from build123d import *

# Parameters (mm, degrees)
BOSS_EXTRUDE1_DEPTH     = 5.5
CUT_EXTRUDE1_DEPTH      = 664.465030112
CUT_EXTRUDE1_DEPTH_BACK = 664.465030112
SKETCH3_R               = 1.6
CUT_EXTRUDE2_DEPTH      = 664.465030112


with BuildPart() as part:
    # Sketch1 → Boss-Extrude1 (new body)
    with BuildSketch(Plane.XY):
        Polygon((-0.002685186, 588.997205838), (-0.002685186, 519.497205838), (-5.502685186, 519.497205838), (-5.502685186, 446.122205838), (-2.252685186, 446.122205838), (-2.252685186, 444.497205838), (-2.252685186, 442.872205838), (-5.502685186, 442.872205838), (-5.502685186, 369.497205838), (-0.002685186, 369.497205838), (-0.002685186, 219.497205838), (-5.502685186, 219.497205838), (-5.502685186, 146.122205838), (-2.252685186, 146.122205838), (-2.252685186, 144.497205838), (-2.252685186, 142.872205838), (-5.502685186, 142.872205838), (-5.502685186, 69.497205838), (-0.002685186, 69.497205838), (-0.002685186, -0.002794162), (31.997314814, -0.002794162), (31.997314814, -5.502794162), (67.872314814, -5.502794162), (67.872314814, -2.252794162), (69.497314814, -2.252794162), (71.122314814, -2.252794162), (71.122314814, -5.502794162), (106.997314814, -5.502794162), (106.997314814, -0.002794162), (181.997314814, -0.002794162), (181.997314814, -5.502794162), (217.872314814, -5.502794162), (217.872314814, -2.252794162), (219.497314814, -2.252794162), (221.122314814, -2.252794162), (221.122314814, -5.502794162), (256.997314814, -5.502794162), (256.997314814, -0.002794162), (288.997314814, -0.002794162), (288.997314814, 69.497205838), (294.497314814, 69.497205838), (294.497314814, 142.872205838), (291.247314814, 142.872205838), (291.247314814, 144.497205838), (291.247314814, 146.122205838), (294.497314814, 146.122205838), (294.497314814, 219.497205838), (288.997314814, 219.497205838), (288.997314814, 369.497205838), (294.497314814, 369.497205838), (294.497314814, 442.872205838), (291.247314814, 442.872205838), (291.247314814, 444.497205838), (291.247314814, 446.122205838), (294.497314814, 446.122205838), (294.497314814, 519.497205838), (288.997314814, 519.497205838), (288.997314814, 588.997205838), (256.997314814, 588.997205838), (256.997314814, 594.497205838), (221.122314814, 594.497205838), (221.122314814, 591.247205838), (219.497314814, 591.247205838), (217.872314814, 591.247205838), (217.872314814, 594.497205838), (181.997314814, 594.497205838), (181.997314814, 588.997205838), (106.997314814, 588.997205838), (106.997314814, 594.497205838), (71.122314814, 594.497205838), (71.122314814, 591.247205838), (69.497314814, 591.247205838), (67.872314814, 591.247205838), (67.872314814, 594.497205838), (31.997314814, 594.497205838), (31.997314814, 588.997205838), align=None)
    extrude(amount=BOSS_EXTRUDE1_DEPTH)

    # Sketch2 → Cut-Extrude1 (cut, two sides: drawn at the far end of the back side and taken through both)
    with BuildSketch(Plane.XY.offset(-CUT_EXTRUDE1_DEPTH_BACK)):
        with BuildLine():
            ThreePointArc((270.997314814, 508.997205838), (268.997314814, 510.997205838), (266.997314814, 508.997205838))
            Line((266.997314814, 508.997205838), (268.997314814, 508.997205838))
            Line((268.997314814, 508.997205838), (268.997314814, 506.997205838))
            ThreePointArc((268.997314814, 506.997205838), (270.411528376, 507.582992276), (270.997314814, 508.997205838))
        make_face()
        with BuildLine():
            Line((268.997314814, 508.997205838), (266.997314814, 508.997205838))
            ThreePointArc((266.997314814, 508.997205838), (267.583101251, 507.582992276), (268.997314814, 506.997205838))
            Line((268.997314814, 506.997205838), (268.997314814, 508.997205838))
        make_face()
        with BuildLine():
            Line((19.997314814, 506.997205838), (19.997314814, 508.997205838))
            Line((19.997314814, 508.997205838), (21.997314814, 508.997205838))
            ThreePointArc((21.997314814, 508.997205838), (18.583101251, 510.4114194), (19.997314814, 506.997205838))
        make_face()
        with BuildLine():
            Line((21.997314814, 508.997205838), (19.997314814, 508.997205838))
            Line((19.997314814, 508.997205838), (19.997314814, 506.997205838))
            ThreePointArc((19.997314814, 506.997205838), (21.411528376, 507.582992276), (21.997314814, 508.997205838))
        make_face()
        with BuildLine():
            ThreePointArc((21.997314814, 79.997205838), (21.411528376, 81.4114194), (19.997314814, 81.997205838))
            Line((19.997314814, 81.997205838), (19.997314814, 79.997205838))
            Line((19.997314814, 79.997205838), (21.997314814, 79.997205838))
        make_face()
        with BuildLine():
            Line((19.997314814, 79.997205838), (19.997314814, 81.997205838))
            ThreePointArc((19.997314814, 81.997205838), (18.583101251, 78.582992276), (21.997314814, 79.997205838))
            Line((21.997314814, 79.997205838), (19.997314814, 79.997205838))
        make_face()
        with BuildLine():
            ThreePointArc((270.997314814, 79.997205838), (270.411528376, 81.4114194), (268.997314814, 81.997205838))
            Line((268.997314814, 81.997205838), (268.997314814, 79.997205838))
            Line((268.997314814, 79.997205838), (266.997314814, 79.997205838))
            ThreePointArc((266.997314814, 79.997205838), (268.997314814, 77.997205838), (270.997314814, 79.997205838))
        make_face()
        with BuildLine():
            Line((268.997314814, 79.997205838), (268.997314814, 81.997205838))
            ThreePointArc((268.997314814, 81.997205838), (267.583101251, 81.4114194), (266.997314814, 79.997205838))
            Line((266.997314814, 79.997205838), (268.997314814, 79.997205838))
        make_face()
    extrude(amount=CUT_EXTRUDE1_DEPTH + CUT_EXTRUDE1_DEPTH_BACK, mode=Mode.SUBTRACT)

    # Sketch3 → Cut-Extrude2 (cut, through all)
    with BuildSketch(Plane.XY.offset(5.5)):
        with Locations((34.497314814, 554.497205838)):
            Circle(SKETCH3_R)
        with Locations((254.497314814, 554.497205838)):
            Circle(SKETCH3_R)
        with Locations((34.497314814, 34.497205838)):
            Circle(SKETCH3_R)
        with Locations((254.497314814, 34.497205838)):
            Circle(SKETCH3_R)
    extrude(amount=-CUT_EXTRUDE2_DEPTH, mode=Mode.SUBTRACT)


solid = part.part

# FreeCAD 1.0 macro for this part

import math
import FreeCAD as App
import Part
import Sketcher

doc = App.newDocument("Part")
body = doc.addObject("PartDesign::Body", "Body")

sketch1 = body.newObject("Sketcher::SketchObject", "Sketch")
sketch1.AttachmentSupport = (doc.getObject("XY_Plane"), [""])
sketch1.MapMode = "FlatFace"
sketch1.addGeometry(Part.LineSegment(App.Vector(0, 589, 0), App.Vector(0, 519.5, 0)), False)
sketch1.addGeometry(Part.LineSegment(App.Vector(0, 519.5, 0), App.Vector(-5.5, 519.5, 0)), False)
sketch1.addGeometry(Part.LineSegment(App.Vector(-5.5, 519.5, 0), App.Vector(-5.5, 446.1, 0)), False)
sketch1.addGeometry(Part.LineSegment(App.Vector(-5.5, 446.1, 0), App.Vector(-2.3, 446.1, 0)), False)
sketch1.addGeometry(Part.LineSegment(App.Vector(-2.3, 446.1, 0), App.Vector(-2.3, 442.9, 0)), False)
sketch1.addGeometry(Part.LineSegment(App.Vector(-2.3, 442.9, 0), App.Vector(-5.5, 442.9, 0)), False)
sketch1.addGeometry(Part.LineSegment(App.Vector(-5.5, 442.9, 0), App.Vector(-5.5, 369.5, 0)), False)
sketch1.addGeometry(Part.LineSegment(App.Vector(-5.5, 369.5, 0), App.Vector(0, 369.5, 0)), False)
sketch1.addGeometry(Part.LineSegment(App.Vector(0, 369.5, 0), App.Vector(0, 219.5, 0)), False)
sketch1.addGeometry(Part.LineSegment(App.Vector(0, 219.5, 0), App.Vector(-5.5, 219.5, 0)), False)
sketch1.addGeometry(Part.LineSegment(App.Vector(-5.5, 219.5, 0), App.Vector(-5.5, 146.1, 0)), False)
sketch1.addGeometry(Part.LineSegment(App.Vector(-5.5, 146.1, 0), App.Vector(-2.3, 146.1, 0)), False)
sketch1.addGeometry(Part.LineSegment(App.Vector(-2.3, 146.1, 0), App.Vector(-2.3, 142.9, 0)), False)
sketch1.addGeometry(Part.LineSegment(App.Vector(-2.3, 142.9, 0), App.Vector(-5.5, 142.9, 0)), False)
sketch1.addGeometry(Part.LineSegment(App.Vector(-5.5, 142.9, 0), App.Vector(-5.5, 69.5, 0)), False)
sketch1.addGeometry(Part.LineSegment(App.Vector(-5.5, 69.5, 0), App.Vector(0, 69.5, 0)), False)
sketch1.addGeometry(Part.LineSegment(App.Vector(0, 69.5, 0), App.Vector(0, 0, 0)), False)
sketch1.addGeometry(Part.LineSegment(App.Vector(0, 0, 0), App.Vector(32, 0, 0)), False)
sketch1.addGeometry(Part.LineSegment(App.Vector(32, 0, 0), App.Vector(32, -5.5, 0)), False)
sketch1.addGeometry(Part.LineSegment(App.Vector(32, -5.5, 0), App.Vector(67.9, -5.5, 0)), False)
sketch1.addGeometry(Part.LineSegment(App.Vector(67.9, -5.5, 0), App.Vector(67.9, -2.3, 0)), False)
sketch1.addGeometry(Part.LineSegment(App.Vector(67.9, -2.3, 0), App.Vector(71.1, -2.3, 0)), False)
sketch1.addGeometry(Part.LineSegment(App.Vector(71.1, -2.3, 0), App.Vector(71.1, -5.5, 0)), False)
sketch1.addGeometry(Part.LineSegment(App.Vector(71.1, -5.5, 0), App.Vector(107, -5.5, 0)), False)
sketch1.addGeometry(Part.LineSegment(App.Vector(107, -5.5, 0), App.Vector(107, 0, 0)), False)
sketch1.addGeometry(Part.LineSegment(App.Vector(107, 0, 0), App.Vector(182, 0, 0)), False)
sketch1.addGeometry(Part.LineSegment(App.Vector(182, 0, 0), App.Vector(182, -5.5, 0)), False)
sketch1.addGeometry(Part.LineSegment(App.Vector(182, -5.5, 0), App.Vector(217.9, -5.5, 0)), False)
sketch1.addGeometry(Part.LineSegment(App.Vector(217.9, -5.5, 0), App.Vector(217.9, -2.3, 0)), False)
sketch1.addGeometry(Part.LineSegment(App.Vector(217.9, -2.3, 0), App.Vector(221.1, -2.3, 0)), False)
sketch1.addGeometry(Part.LineSegment(App.Vector(221.1, -2.3, 0), App.Vector(221.1, -5.5, 0)), False)
sketch1.addGeometry(Part.LineSegment(App.Vector(221.1, -5.5, 0), App.Vector(257, -5.5, 0)), False)
sketch1.addGeometry(Part.LineSegment(App.Vector(257, -5.5, 0), App.Vector(257, 0, 0)), False)
sketch1.addGeometry(Part.LineSegment(App.Vector(257, 0, 0), App.Vector(289, 0, 0)), False)
sketch1.addGeometry(Part.LineSegment(App.Vector(289, 0, 0), App.Vector(289, 69.5, 0)), False)
sketch1.addGeometry(Part.LineSegment(App.Vector(289, 69.5, 0), App.Vector(294.5, 69.5, 0)), False)
sketch1.addGeometry(Part.LineSegment(App.Vector(294.5, 69.5, 0), App.Vector(294.5, 142.9, 0)), False)
sketch1.addGeometry(Part.LineSegment(App.Vector(294.5, 142.9, 0), App.Vector(291.2, 142.9, 0)), False)
sketch1.addGeometry(Part.LineSegment(App.Vector(291.2, 142.9, 0), App.Vector(291.2, 146.1, 0)), False)
sketch1.addGeometry(Part.LineSegment(App.Vector(291.2, 146.1, 0), App.Vector(294.5, 146.1, 0)), False)
sketch1.addGeometry(Part.LineSegment(App.Vector(294.5, 146.1, 0), App.Vector(294.5, 219.5, 0)), False)
sketch1.addGeometry(Part.LineSegment(App.Vector(294.5, 219.5, 0), App.Vector(289, 219.5, 0)), False)
sketch1.addGeometry(Part.LineSegment(App.Vector(289, 219.5, 0), App.Vector(289, 369.5, 0)), False)
sketch1.addGeometry(Part.LineSegment(App.Vector(289, 369.5, 0), App.Vector(294.5, 369.5, 0)), False)
sketch1.addGeometry(Part.LineSegment(App.Vector(294.5, 369.5, 0), App.Vector(294.5, 442.9, 0)), False)
sketch1.addGeometry(Part.LineSegment(App.Vector(294.5, 442.9, 0), App.Vector(291.2, 442.9, 0)), False)
sketch1.addGeometry(Part.LineSegment(App.Vector(291.2, 442.9, 0), App.Vector(291.2, 446.1, 0)), False)
sketch1.addGeometry(Part.LineSegment(App.Vector(291.2, 446.1, 0), App.Vector(294.5, 446.1, 0)), False)
sketch1.addGeometry(Part.LineSegment(App.Vector(294.5, 446.1, 0), App.Vector(294.5, 519.5, 0)), False)
sketch1.addGeometry(Part.LineSegment(App.Vector(294.5, 519.5, 0), App.Vector(289, 519.5, 0)), False)
sketch1.addGeometry(Part.LineSegment(App.Vector(289, 519.5, 0), App.Vector(289, 589, 0)), False)
sketch1.addGeometry(Part.LineSegment(App.Vector(289, 589, 0), App.Vector(257, 589, 0)), False)
sketch1.addGeometry(Part.LineSegment(App.Vector(257, 589, 0), App.Vector(257, 594.5, 0)), False)
sketch1.addGeometry(Part.LineSegment(App.Vector(257, 594.5, 0), App.Vector(221.1, 594.5, 0)), False)
sketch1.addGeometry(Part.LineSegment(App.Vector(221.1, 594.5, 0), App.Vector(221.1, 591.2, 0)), False)
sketch1.addGeometry(Part.LineSegment(App.Vector(221.1, 591.2, 0), App.Vector(217.9, 591.2, 0)), False)
sketch1.addGeometry(Part.LineSegment(App.Vector(217.9, 591.2, 0), App.Vector(217.9, 594.5, 0)), False)
sketch1.addGeometry(Part.LineSegment(App.Vector(217.9, 594.5, 0), App.Vector(182, 594.5, 0)), False)
sketch1.addGeometry(Part.LineSegment(App.Vector(182, 594.5, 0), App.Vector(182, 589, 0)), False)
sketch1.addGeometry(Part.LineSegment(App.Vector(182, 589, 0), App.Vector(107, 589, 0)), False)
sketch1.addGeometry(Part.LineSegment(App.Vector(107, 589, 0), App.Vector(107, 594.5, 0)), False)
sketch1.addGeometry(Part.LineSegment(App.Vector(107, 594.5, 0), App.Vector(71.1, 594.5, 0)), False)
sketch1.addGeometry(Part.LineSegment(App.Vector(71.1, 594.5, 0), App.Vector(71.1, 591.2, 0)), False)
sketch1.addGeometry(Part.LineSegment(App.Vector(71.1, 591.2, 0), App.Vector(67.9, 591.2, 0)), False)
sketch1.addGeometry(Part.LineSegment(App.Vector(67.9, 591.2, 0), App.Vector(67.9, 594.5, 0)), False)
sketch1.addGeometry(Part.LineSegment(App.Vector(67.9, 594.5, 0), App.Vector(32, 594.5, 0)), False)
sketch1.addGeometry(Part.LineSegment(App.Vector(32, 594.5, 0), App.Vector(32, 589, 0)), False)
sketch1.addGeometry(Part.LineSegment(App.Vector(32, 589, 0), App.Vector(0, 589, 0)), False)
sketch1.addConstraint(Sketcher.Constraint("Coincident", 0, 2, 1, 1))
sketch1.addConstraint(Sketcher.Constraint("Coincident", 1, 2, 2, 1))
sketch1.addConstraint(Sketcher.Constraint("Coincident", 2, 2, 3, 1))
sketch1.addConstraint(Sketcher.Constraint("Coincident", 3, 2, 4, 1))
sketch1.addConstraint(Sketcher.Constraint("Coincident", 4, 2, 5, 1))
sketch1.addConstraint(Sketcher.Constraint("Coincident", 5, 2, 6, 1))
sketch1.addConstraint(Sketcher.Constraint("Coincident", 6, 2, 7, 1))
sketch1.addConstraint(Sketcher.Constraint("Coincident", 7, 2, 8, 1))
sketch1.addConstraint(Sketcher.Constraint("Coincident", 8, 2, 9, 1))
sketch1.addConstraint(Sketcher.Constraint("Coincident", 9, 2, 10, 1))
sketch1.addConstraint(Sketcher.Constraint("Coincident", 10, 2, 11, 1))
sketch1.addConstraint(Sketcher.Constraint("Coincident", 11, 2, 12, 1))
sketch1.addConstraint(Sketcher.Constraint("Coincident", 12, 2, 13, 1))
sketch1.addConstraint(Sketcher.Constraint("Coincident", 13, 2, 14, 1))
sketch1.addConstraint(Sketcher.Constraint("Coincident", 14, 2, 15, 1))
sketch1.addConstraint(Sketcher.Constraint("Coincident", 15, 2, 16, 1))
sketch1.addConstraint(Sketcher.Constraint("Coincident", 16, 2, 17, 1))
sketch1.addConstraint(Sketcher.Constraint("Coincident", 17, 2, 18, 1))
sketch1.addConstraint(Sketcher.Constraint("Coincident", 18, 2, 19, 1))
sketch1.addConstraint(Sketcher.Constraint("Coincident", 19, 2, 20, 1))
sketch1.addConstraint(Sketcher.Constraint("Coincident", 20, 2, 21, 1))
sketch1.addConstraint(Sketcher.Constraint("Coincident", 21, 2, 22, 1))
sketch1.addConstraint(Sketcher.Constraint("Coincident", 22, 2, 23, 1))
sketch1.addConstraint(Sketcher.Constraint("Coincident", 23, 2, 24, 1))
sketch1.addConstraint(Sketcher.Constraint("Coincident", 24, 2, 25, 1))
sketch1.addConstraint(Sketcher.Constraint("Coincident", 25, 2, 26, 1))
sketch1.addConstraint(Sketcher.Constraint("Coincident", 26, 2, 27, 1))
sketch1.addConstraint(Sketcher.Constraint("Coincident", 27, 2, 28, 1))
sketch1.addConstraint(Sketcher.Constraint("Coincident", 28, 2, 29, 1))
sketch1.addConstraint(Sketcher.Constraint("Coincident", 29, 2, 30, 1))
sketch1.addConstraint(Sketcher.Constraint("Coincident", 30, 2, 31, 1))
sketch1.addConstraint(Sketcher.Constraint("Coincident", 31, 2, 32, 1))
sketch1.addConstraint(Sketcher.Constraint("Coincident", 32, 2, 33, 1))
sketch1.addConstraint(Sketcher.Constraint("Coincident", 33, 2, 34, 1))
sketch1.addConstraint(Sketcher.Constraint("Coincident", 34, 2, 35, 1))
sketch1.addConstraint(Sketcher.Constraint("Coincident", 35, 2, 36, 1))
sketch1.addConstraint(Sketcher.Constraint("Coincident", 36, 2, 37, 1))
sketch1.addConstraint(Sketcher.Constraint("Coincident", 37, 2, 38, 1))
sketch1.addConstraint(Sketcher.Constraint("Coincident", 38, 2, 39, 1))
sketch1.addConstraint(Sketcher.Constraint("Coincident", 39, 2, 40, 1))
sketch1.addConstraint(Sketcher.Constraint("Coincident", 40, 2, 41, 1))
sketch1.addConstraint(Sketcher.Constraint("Coincident", 41, 2, 42, 1))
sketch1.addConstraint(Sketcher.Constraint("Coincident", 42, 2, 43, 1))
sketch1.addConstraint(Sketcher.Constraint("Coincident", 43, 2, 44, 1))
sketch1.addConstraint(Sketcher.Constraint("Coincident", 44, 2, 45, 1))
sketch1.addConstraint(Sketcher.Constraint("Coincident", 45, 2, 46, 1))
sketch1.addConstraint(Sketcher.Constraint("Coincident", 46, 2, 47, 1))
sketch1.addConstraint(Sketcher.Constraint("Coincident", 47, 2, 48, 1))
sketch1.addConstraint(Sketcher.Constraint("Coincident", 48, 2, 49, 1))
sketch1.addConstraint(Sketcher.Constraint("Coincident", 49, 2, 50, 1))
sketch1.addConstraint(Sketcher.Constraint("Coincident", 50, 2, 51, 1))
sketch1.addConstraint(Sketcher.Constraint("Coincident", 51, 2, 52, 1))
sketch1.addConstraint(Sketcher.Constraint("Coincident", 52, 2, 53, 1))
sketch1.addConstraint(Sketcher.Constraint("Coincident", 53, 2, 54, 1))
sketch1.addConstraint(Sketcher.Constraint("Coincident", 54, 2, 55, 1))
sketch1.addConstraint(Sketcher.Constraint("Coincident", 55, 2, 56, 1))
sketch1.addConstraint(Sketcher.Constraint("Coincident", 56, 2, 57, 1))
sketch1.addConstraint(Sketcher.Constraint("Coincident", 57, 2, 58, 1))
sketch1.addConstraint(Sketcher.Constraint("Coincident", 58, 2, 59, 1))
sketch1.addConstraint(Sketcher.Constraint("Coincident", 59, 2, 60, 1))
sketch1.addConstraint(Sketcher.Constraint("Coincident", 60, 2, 61, 1))
sketch1.addConstraint(Sketcher.Constraint("Coincident", 61, 2, 62, 1))
sketch1.addConstraint(Sketcher.Constraint("Coincident", 62, 2, 63, 1))
sketch1.addConstraint(Sketcher.Constraint("Coincident", 63, 2, 64, 1))
sketch1.addConstraint(Sketcher.Constraint("Coincident", 64, 2, 65, 1))
sketch1.addConstraint(Sketcher.Constraint("Coincident", 65, 2, 66, 1))
sketch1.addConstraint(Sketcher.Constraint("Coincident", 66, 2, 67, 1))
sketch1.addConstraint(Sketcher.Constraint("Coincident", 67, 2, 0, 1))
sketch1.addConstraint(Sketcher.Constraint("Vertical", 0))
sketch1.addConstraint(Sketcher.Constraint("Horizontal", 1))
sketch1.addConstraint(Sketcher.Constraint("Vertical", 2))
sketch1.addConstraint(Sketcher.Constraint("Horizontal", 3))
sketch1.addConstraint(Sketcher.Constraint("Vertical", 4))
sketch1.addConstraint(Sketcher.Constraint("Horizontal", 5))
sketch1.addConstraint(Sketcher.Constraint("Vertical", 6))
sketch1.addConstraint(Sketcher.Constraint("Horizontal", 7))
sketch1.addConstraint(Sketcher.Constraint("Vertical", 8))
sketch1.addConstraint(Sketcher.Constraint("Horizontal", 9))
sketch1.addConstraint(Sketcher.Constraint("Vertical", 10))
sketch1.addConstraint(Sketcher.Constraint("Horizontal", 11))
sketch1.addConstraint(Sketcher.Constraint("Vertical", 12))
sketch1.addConstraint(Sketcher.Constraint("Horizontal", 13))
sketch1.addConstraint(Sketcher.Constraint("Vertical", 14))
sketch1.addConstraint(Sketcher.Constraint("Horizontal", 15))
sketch1.addConstraint(Sketcher.Constraint("Vertical", 16))
sketch1.addConstraint(Sketcher.Constraint("Horizontal", 17))
sketch1.addConstraint(Sketcher.Constraint("Vertical", 18))
sketch1.addConstraint(Sketcher.Constraint("Horizontal", 19))
sketch1.addConstraint(Sketcher.Constraint("Vertical", 20))
sketch1.addConstraint(Sketcher.Constraint("Horizontal", 21))
sketch1.addConstraint(Sketcher.Constraint("Vertical", 22))
sketch1.addConstraint(Sketcher.Constraint("Horizontal", 23))
sketch1.addConstraint(Sketcher.Constraint("Vertical", 24))
sketch1.addConstraint(Sketcher.Constraint("Horizontal", 25))
sketch1.addConstraint(Sketcher.Constraint("Vertical", 26))
sketch1.addConstraint(Sketcher.Constraint("Horizontal", 27))
sketch1.addConstraint(Sketcher.Constraint("Vertical", 28))
sketch1.addConstraint(Sketcher.Constraint("Horizontal", 29))
sketch1.addConstraint(Sketcher.Constraint("Vertical", 30))
sketch1.addConstraint(Sketcher.Constraint("Horizontal", 31))
sketch1.addConstraint(Sketcher.Constraint("Vertical", 32))
sketch1.addConstraint(Sketcher.Constraint("Horizontal", 33))
sketch1.addConstraint(Sketcher.Constraint("Vertical", 34))
sketch1.addConstraint(Sketcher.Constraint("Horizontal", 35))
sketch1.addConstraint(Sketcher.Constraint("Vertical", 36))
sketch1.addConstraint(Sketcher.Constraint("Horizontal", 37))
sketch1.addConstraint(Sketcher.Constraint("Vertical", 38))
sketch1.addConstraint(Sketcher.Constraint("Horizontal", 39))
sketch1.addConstraint(Sketcher.Constraint("Vertical", 40))
sketch1.addConstraint(Sketcher.Constraint("Horizontal", 41))
sketch1.addConstraint(Sketcher.Constraint("Vertical", 42))
sketch1.addConstraint(Sketcher.Constraint("Horizontal", 43))
sketch1.addConstraint(Sketcher.Constraint("Vertical", 44))
sketch1.addConstraint(Sketcher.Constraint("Horizontal", 45))
sketch1.addConstraint(Sketcher.Constraint("Vertical", 46))
sketch1.addConstraint(Sketcher.Constraint("Horizontal", 47))
sketch1.addConstraint(Sketcher.Constraint("Vertical", 48))
sketch1.addConstraint(Sketcher.Constraint("Horizontal", 49))
sketch1.addConstraint(Sketcher.Constraint("Vertical", 50))
sketch1.addConstraint(Sketcher.Constraint("Horizontal", 51))
sketch1.addConstraint(Sketcher.Constraint("Vertical", 52))
sketch1.addConstraint(Sketcher.Constraint("Horizontal", 53))
sketch1.addConstraint(Sketcher.Constraint("Vertical", 54))
sketch1.addConstraint(Sketcher.Constraint("Horizontal", 55))
sketch1.addConstraint(Sketcher.Constraint("Vertical", 56))
sketch1.addConstraint(Sketcher.Constraint("Horizontal", 57))
sketch1.addConstraint(Sketcher.Constraint("Vertical", 58))
sketch1.addConstraint(Sketcher.Constraint("Horizontal", 59))
sketch1.addConstraint(Sketcher.Constraint("Vertical", 60))
sketch1.addConstraint(Sketcher.Constraint("Horizontal", 61))
sketch1.addConstraint(Sketcher.Constraint("Vertical", 62))
sketch1.addConstraint(Sketcher.Constraint("Horizontal", 63))
sketch1.addConstraint(Sketcher.Constraint("Vertical", 64))
sketch1.addConstraint(Sketcher.Constraint("Horizontal", 65))
sketch1.addConstraint(Sketcher.Constraint("Vertical", 66))
sketch1.addConstraint(Sketcher.Constraint("Horizontal", 67))
sketch1.addConstraint(Sketcher.Constraint("Horizontal", 19, 2, 22, 2))
sketch1.addConstraint(Sketcher.Constraint("Horizontal", 17, 2, 24, 2))
sketch1.addConstraint(Sketcher.Constraint("Horizontal", 23, 2, 26, 2))
sketch1.addConstraint(Sketcher.Constraint("Horizontal", 21, 2, 28, 2))
sketch1.addConstraint(Sketcher.Constraint("Horizontal", 27, 2, 30, 2))
sketch1.addConstraint(Sketcher.Constraint("Horizontal", 25, 2, 32, 2))
sketch1.addConstraint(Sketcher.Constraint("Horizontal", 15, 2, 34, 2))
sketch1.addConstraint(Sketcher.Constraint("Horizontal", 13, 2, 36, 2))
sketch1.addConstraint(Sketcher.Constraint("Horizontal", 11, 2, 38, 2))
sketch1.addConstraint(Sketcher.Constraint("Horizontal", 9, 2, 40, 2))
sketch1.addConstraint(Sketcher.Constraint("Horizontal", 7, 2, 42, 2))
sketch1.addConstraint(Sketcher.Constraint("Horizontal", 5, 2, 44, 2))
sketch1.addConstraint(Sketcher.Constraint("Horizontal", 3, 2, 46, 2))
sketch1.addConstraint(Sketcher.Constraint("Horizontal", 1, 2, 48, 2))
sketch1.addConstraint(Sketcher.Constraint("Horizontal", 53, 2, 56, 2))
sketch1.addConstraint(Sketcher.Constraint("Horizontal", 51, 2, 58, 2))
sketch1.addConstraint(Sketcher.Constraint("Horizontal", 57, 2, 60, 2))
sketch1.addConstraint(Sketcher.Constraint("Horizontal", 55, 2, 62, 2))
sketch1.addConstraint(Sketcher.Constraint("Horizontal", 61, 2, 64, 2))
sketch1.addConstraint(Sketcher.Constraint("Horizontal", 59, 2, 66, 2))
sketch1.addConstraint(Sketcher.Constraint("Vertical", 2, 2, 5, 2))
sketch1.addConstraint(Sketcher.Constraint("Vertical", 0, 2, 7, 2))
sketch1.addConstraint(Sketcher.Constraint("Vertical", 6, 2, 9, 2))
sketch1.addConstraint(Sketcher.Constraint("Vertical", 4, 2, 11, 2))
sketch1.addConstraint(Sketcher.Constraint("Vertical", 10, 2, 13, 2))
sketch1.addConstraint(Sketcher.Constraint("Vertical", 8, 2, 15, 2))
sketch1.addConstraint(Sketcher.Constraint("Vertical", 36, 2, 39, 2))
sketch1.addConstraint(Sketcher.Constraint("Vertical", 34, 2, 41, 2))
sketch1.addConstraint(Sketcher.Constraint("Vertical", 40, 2, 43, 2))
sketch1.addConstraint(Sketcher.Constraint("Vertical", 38, 2, 45, 2))
sketch1.addConstraint(Sketcher.Constraint("Vertical", 44, 2, 47, 2))
sketch1.addConstraint(Sketcher.Constraint("Vertical", 42, 2, 49, 2))
sketch1.addConstraint(Sketcher.Constraint("Vertical", 32, 2, 51, 2))
sketch1.addConstraint(Sketcher.Constraint("Vertical", 30, 2, 53, 2))
sketch1.addConstraint(Sketcher.Constraint("Vertical", 28, 2, 55, 2))
sketch1.addConstraint(Sketcher.Constraint("Vertical", 26, 2, 57, 2))
sketch1.addConstraint(Sketcher.Constraint("Vertical", 24, 2, 59, 2))
sketch1.addConstraint(Sketcher.Constraint("Vertical", 22, 2, 61, 2))
sketch1.addConstraint(Sketcher.Constraint("Vertical", 20, 2, 63, 2))
sketch1.addConstraint(Sketcher.Constraint("Vertical", 18, 2, 65, 2))
sketch1.addConstraint(Sketcher.Constraint("Equal", 13, 21))
sketch1.addConstraint(Sketcher.Constraint("Equal", 19, 23))
sketch1.addConstraint(Sketcher.Constraint("Equal", 23, 27))
sketch1.addConstraint(Sketcher.Constraint("Equal", 21, 29))
sketch1.addConstraint(Sketcher.Constraint("Equal", 27, 31))
sketch1.addConstraint(Sketcher.Constraint("Equal", 17, 33))
sketch1.addConstraint(Sketcher.Constraint("Equal", 15, 35))
sketch1.addConstraint(Sketcher.Constraint("Equal", 29, 37))
sketch1.addConstraint(Sketcher.Constraint("Equal", 63, 4))
sketch1.addConstraint(Sketcher.Constraint("Equal", 2, 6))
sketch1.addConstraint(Sketcher.Constraint("Equal", 6, 10))
sketch1.addConstraint(Sketcher.Constraint("Equal", 4, 12))
sketch1.addConstraint(Sketcher.Constraint("Equal", 10, 14))
sketch1.addConstraint(Sketcher.Constraint("Equal", 0, 16))
sketch1.addConstraint(Sketcher.Constraint("Equal", 49, 18))
sketch1.addConstraint(Sketcher.Constraint("Equal", 12, 20))
sketch1.addConstraint(Sketcher.Constraint("Equal", 32, 52))
sketch1.addConstraint(Sketcher.Constraint("Equal", 46, 54))
sketch1.addConstraint(Sketcher.Constraint("DistanceX", 17, 1, 17, 2, 32.0))
sketch1.addConstraint(Sketcher.Constraint("DistanceX", 25, 1, 25, 2, 75.0))
sketch1.addConstraint(Sketcher.Constraint("DistanceY", 8, 2, 8, 1, 150.0))
sketch1.addConstraint(Sketcher.Constraint("DistanceX", 1, 2, 1, 1, 5.5))
sketch1.addConstraint(Sketcher.Constraint("DistanceY", 0, 2, 0, 1, 69.5))
sketch1.addConstraint(Sketcher.Constraint("DistanceX", 3, 1, 3, 2, 3.25))
sketch1.addConstraint(Sketcher.Constraint("DistanceX", 19, 1, 19, 2, 35.875))
sketch1.addConstraint(Sketcher.Constraint("DistanceY", 2, 2, 2, 1, 73.375))
sketch1.addConstraint(Sketcher.Constraint("DistanceX", 0, 2, -1, 1, 0.002685))
sketch1.addConstraint(Sketcher.Constraint("DistanceY", -1, 1, 0, 2, 519.497206))
pad1 = body.newObject("PartDesign::Pad", "Pad")
pad1.Profile = sketch1
pad1.Length = 5.5

sketch2 = body.newObject("Sketcher::SketchObject", "Sketch001")
sketch2.AttachmentSupport = (doc.getObject("XY_Plane"), [""])
sketch2.MapMode = "FlatFace"
sketch2.addGeometry(Part.ArcOfCircle(Part.Circle(App.Vector(269, 509, 0), App.Vector(0, 0, 1), 2), math.radians(0), math.radians(180)), False)
sketch2.addGeometry(Part.ArcOfCircle(Part.Circle(App.Vector(269, 509, 0), App.Vector(0, 0, 1), 2), math.radians(180), math.radians(270)), False)
sketch2.addGeometry(Part.ArcOfCircle(Part.Circle(App.Vector(269, 509, 0), App.Vector(0, 0, 1), 2), math.radians(-90), math.radians(0)), False)
sketch2.addGeometry(Part.ArcOfCircle(Part.Circle(App.Vector(20, 509, 0), App.Vector(0, 0, 1), 2), math.radians(0), math.radians(270)), False)
sketch2.addGeometry(Part.ArcOfCircle(Part.Circle(App.Vector(20, 509, 0), App.Vector(0, 0, 1), 2), math.radians(-90), math.radians(0)), False)
sketch2.addGeometry(Part.ArcOfCircle(Part.Circle(App.Vector(20, 80, 0), App.Vector(0, 0, 1), 2), math.radians(0), math.radians(90)), False)
sketch2.addGeometry(Part.ArcOfCircle(Part.Circle(App.Vector(20, 80, 0), App.Vector(0, 0, 1), 2), math.radians(90), math.radians(360)), False)
sketch2.addGeometry(Part.ArcOfCircle(Part.Circle(App.Vector(269, 80, 0), App.Vector(0, 0, 1), 2), math.radians(0), math.radians(90)), False)
sketch2.addGeometry(Part.ArcOfCircle(Part.Circle(App.Vector(269, 80, 0), App.Vector(0, 0, 1), 2), math.radians(90), math.radians(180)), False)
sketch2.addGeometry(Part.ArcOfCircle(Part.Circle(App.Vector(269, 80, 0), App.Vector(0, 0, 1), 2), math.radians(180), math.radians(360)), False)
sketch2.addConstraint(Sketcher.Constraint("Tangent", 0, 2, 1, 1))
sketch2.addConstraint(Sketcher.Constraint("Tangent", 1, 2, 2, 1))
sketch2.addConstraint(Sketcher.Constraint("Tangent", 2, 2, 0, 1))
sketch2.addConstraint(Sketcher.Constraint("Tangent", 3, 1, 4, 2))
sketch2.addConstraint(Sketcher.Constraint("Coincident", 4, 1, 3, 2))
sketch2.addConstraint(Sketcher.Constraint("Tangent", 5, 1, 6, 2))
sketch2.addConstraint(Sketcher.Constraint("Coincident", 6, 1, 5, 2))
sketch2.addConstraint(Sketcher.Constraint("Tangent", 7, 2, 8, 1))
sketch2.addConstraint(Sketcher.Constraint("Tangent", 8, 2, 9, 1))
sketch2.addConstraint(Sketcher.Constraint("Tangent", 9, 2, 7, 1))
sketch2.addConstraint(Sketcher.Constraint("Equal", 2, 3))
sketch2.addConstraint(Sketcher.Constraint("Equal", 4, 5))
sketch2.addConstraint(Sketcher.Constraint("Equal", 6, 7))
sketch2.addConstraint(Sketcher.Constraint("Horizontal", 2, 3, 3, 3))
sketch2.addConstraint(Sketcher.Constraint("Horizontal", 6, 3, 7, 3))
sketch2.addConstraint(Sketcher.Constraint("Horizontal", 4, 3, 0, 2))
sketch2.addConstraint(Sketcher.Constraint("Horizontal", 0, 2, 2, 2))
sketch2.addConstraint(Sketcher.Constraint("Horizontal", 2, 2, 3, 1))
sketch2.addConstraint(Sketcher.Constraint("Horizontal", 9, 3, 5, 1))
sketch2.addConstraint(Sketcher.Constraint("Horizontal", 5, 1, 8, 2))
sketch2.addConstraint(Sketcher.Constraint("Horizontal", 8, 2, 9, 2))
sketch2.addConstraint(Sketcher.Constraint("Vertical", 4, 3, 5, 3))
sketch2.addConstraint(Sketcher.Constraint("Vertical", 2, 3, 7, 3))
sketch2.addConstraint(Sketcher.Constraint("Vertical", 9, 3, 1, 2))
sketch2.addConstraint(Sketcher.Constraint("Vertical", 6, 3, 4, 1))
sketch2.addConstraint(Sketcher.Constraint("Vertical", 4, 1, 6, 1))
sketch2.addConstraint(Sketcher.Constraint("Vertical", 1, 2, 7, 2))
sketch2.addConstraint(Sketcher.Constraint("Radius", 0, 2.0))
sketch2.addConstraint(Sketcher.Constraint("DistanceX", 3, 3, 2, 3, 249.0))
sketch2.addConstraint(Sketcher.Constraint("DistanceY", 5, 3, 3, 3, 429.0))
sketch2.addConstraint(Sketcher.Constraint("DistanceX", -1, 1, 0, 3, 268.997315))
sketch2.addConstraint(Sketcher.Constraint("DistanceY", -1, 1, 0, 3, 508.997206))
pocket1 = body.newObject("PartDesign::Pocket", "Pocket")
pocket1.Profile = sketch2
pocket1.Type = "ThroughAll"
pocket1.Midplane = True

sketch3 = body.newObject("Sketcher::SketchObject", "Sketch002")
sketch3.AttachmentSupport = (doc.getObject("XY_Plane"), [""])
sketch3.MapMode = "FlatFace"
sketch3.AttachmentOffset = App.Placement(App.Vector(0, 0, 5.5), App.Rotation())
sketch3.addGeometry(Part.Circle(App.Vector(34.5, 554.5, 0), App.Vector(0, 0, 1), 1.6), False)
sketch3.addGeometry(Part.Circle(App.Vector(254.5, 554.5, 0), App.Vector(0, 0, 1), 1.6), False)
sketch3.addGeometry(Part.Circle(App.Vector(34.5, 34.5, 0), App.Vector(0, 0, 1), 1.6), False)
sketch3.addGeometry(Part.Circle(App.Vector(254.5, 34.5, 0), App.Vector(0, 0, 1), 1.6), False)
sketch3.addConstraint(Sketcher.Constraint("Equal", 0, 1))
sketch3.addConstraint(Sketcher.Constraint("Equal", 1, 2))
sketch3.addConstraint(Sketcher.Constraint("Equal", 2, 3))
sketch3.addConstraint(Sketcher.Constraint("Horizontal", 0, 3, 1, 3))
sketch3.addConstraint(Sketcher.Constraint("Horizontal", 2, 3, 3, 3))
sketch3.addConstraint(Sketcher.Constraint("Vertical", 0, 3, 2, 3))
sketch3.addConstraint(Sketcher.Constraint("Vertical", 1, 3, 3, 3))
sketch3.addConstraint(Sketcher.Constraint("Diameter", 0, 3.2))
sketch3.addConstraint(Sketcher.Constraint("DistanceX", 0, 3, 1, 3, 220.0))
sketch3.addConstraint(Sketcher.Constraint("DistanceY", 2, 3, 0, 3, 520.0))
sketch3.addConstraint(Sketcher.Constraint("DistanceX", -1, 1, 0, 3, 34.497315))
sketch3.addConstraint(Sketcher.Constraint("DistanceY", -1, 1, 0, 3, 554.497206))
pocket2 = body.newObject("PartDesign::Pocket", "Pocket001")
pocket2.Profile = sketch3
pocket2.Type = "ThroughAll"

doc.recompute()
